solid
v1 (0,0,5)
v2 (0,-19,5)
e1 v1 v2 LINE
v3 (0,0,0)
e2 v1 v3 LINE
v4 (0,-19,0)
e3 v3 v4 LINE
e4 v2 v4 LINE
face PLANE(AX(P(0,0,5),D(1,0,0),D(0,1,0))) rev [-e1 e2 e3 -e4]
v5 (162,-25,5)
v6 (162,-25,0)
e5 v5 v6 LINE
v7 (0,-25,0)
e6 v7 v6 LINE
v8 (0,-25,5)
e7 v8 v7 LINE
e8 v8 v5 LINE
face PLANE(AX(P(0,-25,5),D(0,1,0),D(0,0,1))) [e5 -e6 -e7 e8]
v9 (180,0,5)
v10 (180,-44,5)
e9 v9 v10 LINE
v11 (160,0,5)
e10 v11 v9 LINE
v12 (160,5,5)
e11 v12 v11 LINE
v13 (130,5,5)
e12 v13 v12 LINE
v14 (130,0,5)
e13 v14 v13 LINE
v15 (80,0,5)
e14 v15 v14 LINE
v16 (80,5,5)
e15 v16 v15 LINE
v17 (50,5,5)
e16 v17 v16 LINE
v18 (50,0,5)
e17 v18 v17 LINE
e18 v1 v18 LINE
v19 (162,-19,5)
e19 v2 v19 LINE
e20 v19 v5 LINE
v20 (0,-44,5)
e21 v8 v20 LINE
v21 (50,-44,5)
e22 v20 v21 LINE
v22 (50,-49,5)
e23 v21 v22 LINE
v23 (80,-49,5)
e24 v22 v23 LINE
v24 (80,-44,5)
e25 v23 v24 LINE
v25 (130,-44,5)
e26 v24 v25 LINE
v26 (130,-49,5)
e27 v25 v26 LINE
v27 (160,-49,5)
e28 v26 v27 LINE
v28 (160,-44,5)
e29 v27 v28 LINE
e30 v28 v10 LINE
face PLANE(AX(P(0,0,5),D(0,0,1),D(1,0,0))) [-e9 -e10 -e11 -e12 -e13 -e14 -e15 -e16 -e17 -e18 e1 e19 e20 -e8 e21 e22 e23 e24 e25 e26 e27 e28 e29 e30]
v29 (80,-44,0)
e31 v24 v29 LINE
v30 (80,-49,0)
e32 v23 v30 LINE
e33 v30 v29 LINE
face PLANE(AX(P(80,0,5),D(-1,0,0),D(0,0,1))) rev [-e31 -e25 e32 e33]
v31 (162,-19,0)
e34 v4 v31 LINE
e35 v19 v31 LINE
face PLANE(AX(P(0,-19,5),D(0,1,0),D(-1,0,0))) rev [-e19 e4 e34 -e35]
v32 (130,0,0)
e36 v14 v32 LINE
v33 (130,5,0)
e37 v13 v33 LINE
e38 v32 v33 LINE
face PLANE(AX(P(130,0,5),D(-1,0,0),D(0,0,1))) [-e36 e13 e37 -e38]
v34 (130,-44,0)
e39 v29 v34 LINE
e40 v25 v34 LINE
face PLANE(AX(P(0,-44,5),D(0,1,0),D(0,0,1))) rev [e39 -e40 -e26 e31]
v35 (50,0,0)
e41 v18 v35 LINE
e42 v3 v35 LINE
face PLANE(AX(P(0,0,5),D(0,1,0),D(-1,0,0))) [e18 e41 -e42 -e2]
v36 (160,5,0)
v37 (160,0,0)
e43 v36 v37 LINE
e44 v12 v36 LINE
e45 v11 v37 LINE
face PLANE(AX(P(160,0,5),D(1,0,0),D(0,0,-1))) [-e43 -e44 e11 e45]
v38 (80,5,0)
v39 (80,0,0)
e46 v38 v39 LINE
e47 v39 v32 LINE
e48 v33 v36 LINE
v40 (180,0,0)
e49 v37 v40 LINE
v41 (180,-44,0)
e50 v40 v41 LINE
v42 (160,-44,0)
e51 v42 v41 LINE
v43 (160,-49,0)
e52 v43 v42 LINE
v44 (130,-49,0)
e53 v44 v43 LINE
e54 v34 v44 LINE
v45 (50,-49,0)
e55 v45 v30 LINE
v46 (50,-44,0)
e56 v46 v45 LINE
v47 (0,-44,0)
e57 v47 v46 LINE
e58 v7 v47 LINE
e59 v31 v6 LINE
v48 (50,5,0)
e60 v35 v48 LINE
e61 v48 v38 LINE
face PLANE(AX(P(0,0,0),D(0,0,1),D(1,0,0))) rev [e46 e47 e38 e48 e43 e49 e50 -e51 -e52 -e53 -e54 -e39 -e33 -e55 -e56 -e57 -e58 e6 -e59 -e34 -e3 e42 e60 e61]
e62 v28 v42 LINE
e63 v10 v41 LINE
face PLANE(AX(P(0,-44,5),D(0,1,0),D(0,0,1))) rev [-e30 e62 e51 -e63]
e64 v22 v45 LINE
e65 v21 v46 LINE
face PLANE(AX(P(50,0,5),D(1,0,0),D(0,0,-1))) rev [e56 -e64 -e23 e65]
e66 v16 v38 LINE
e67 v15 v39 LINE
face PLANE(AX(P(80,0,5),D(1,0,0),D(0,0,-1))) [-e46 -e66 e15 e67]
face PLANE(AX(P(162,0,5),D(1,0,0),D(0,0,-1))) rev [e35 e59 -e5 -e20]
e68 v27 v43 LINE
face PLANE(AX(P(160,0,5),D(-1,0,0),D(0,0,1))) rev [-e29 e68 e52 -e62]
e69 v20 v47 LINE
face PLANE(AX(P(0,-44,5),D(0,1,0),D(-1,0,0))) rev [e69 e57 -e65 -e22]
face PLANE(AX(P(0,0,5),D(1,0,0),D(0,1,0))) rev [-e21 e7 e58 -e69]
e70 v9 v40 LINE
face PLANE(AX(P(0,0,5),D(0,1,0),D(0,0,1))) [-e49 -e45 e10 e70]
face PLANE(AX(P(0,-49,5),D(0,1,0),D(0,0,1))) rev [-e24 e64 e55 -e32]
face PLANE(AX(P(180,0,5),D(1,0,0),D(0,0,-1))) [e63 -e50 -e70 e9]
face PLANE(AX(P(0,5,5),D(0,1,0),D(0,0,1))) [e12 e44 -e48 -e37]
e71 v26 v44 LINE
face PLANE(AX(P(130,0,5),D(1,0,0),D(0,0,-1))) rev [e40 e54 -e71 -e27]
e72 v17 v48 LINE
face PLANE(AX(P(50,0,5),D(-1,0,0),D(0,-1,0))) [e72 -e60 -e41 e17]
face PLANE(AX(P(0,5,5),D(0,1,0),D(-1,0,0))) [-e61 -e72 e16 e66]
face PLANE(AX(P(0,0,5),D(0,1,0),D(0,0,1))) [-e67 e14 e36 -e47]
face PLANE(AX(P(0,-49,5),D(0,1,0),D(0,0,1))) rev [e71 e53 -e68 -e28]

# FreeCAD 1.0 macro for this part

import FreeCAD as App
import Part
import Sketcher

V = App.Vector
Q = App.Units.Quantity


def add_polygon(sketch, points):
    """Adds a closed chain of lines whose ends are joined by coincident constraints."""
    first, n = sketch.GeometryCount, len(points)
    for a, b in zip(points, points[1:] + points[:1]):
        sketch.addGeometry(Part.LineSegment(App.Vector(*a, 0), App.Vector(*b, 0)), False)
    for i in range(n):
        sketch.addConstraint(Sketcher.Constraint("Coincident", first + i, 2, first + (i + 1) % n, 1))

doc = App.newDocument("Part")
body = doc.addObject("PartDesign::Body", "Body")

# Sketch on XY plane
sketch1 = body.newObject("Sketcher::SketchObject", "Sketch")
sketch1.AttachmentSupport = (doc.getObject("XY_Plane"), [""])
sketch1.MapMode = "FlatFace"
add_polygon(sketch1, [(0, -25), (0, -44), (50, -44), (50, -49), (80, -49), (80, -44), (130, -44), (130, -49), (160, -49), (160, -44), (180, -44), (180, 0), (160, 0), (160, 5), (130, 5), (130, 0), (80, 0), (80, 5), (50, 5), (50, 0), (0, 0), (0, -19), (162, -19), (162, -25)])  # lines 0-23
sketch1.addConstraint([
    Sketcher.Constraint("Vertical", 0),
    Sketcher.Constraint("Horizontal", 1),
    Sketcher.Constraint("Vertical", 2),
    Sketcher.Constraint("Horizontal", 3),
    Sketcher.Constraint("Vertical", 4),
    Sketcher.Constraint("Horizontal", 5),
    Sketcher.Constraint("Vertical", 6),
    Sketcher.Constraint("Horizontal", 7),
    Sketcher.Constraint("Vertical", 8),
    Sketcher.Constraint("Horizontal", 9),
    Sketcher.Constraint("Vertical", 10),
    Sketcher.Constraint("Horizontal", 11),
    Sketcher.Constraint("Vertical", 12),
    Sketcher.Constraint("Horizontal", 13),
    Sketcher.Constraint("Vertical", 14),
    Sketcher.Constraint("Horizontal", 15),
    Sketcher.Constraint("Vertical", 16),
    Sketcher.Constraint("Horizontal", 17),
    Sketcher.Constraint("Vertical", 18),
    Sketcher.Constraint("Horizontal", 19),
    Sketcher.Constraint("Vertical", 20),
    Sketcher.Constraint("Horizontal", 21),
    Sketcher.Constraint("Vertical", 22),
    Sketcher.Constraint("Horizontal", 23),
    Sketcher.Constraint("Coincident", 19, 2, -1, 1),
    Sketcher.Constraint("PointOnObject", 0, 2, -2),
    Sketcher.Constraint("PointOnObject", 10, 2, -1),
    Sketcher.Constraint("PointOnObject", 14, 2, -1),
    Sketcher.Constraint("Horizontal", 1, 2, 4, 2),
    Sketcher.Constraint("Horizontal", 3, 2, 6, 2),
    Sketcher.Constraint("Horizontal", 5, 2, 8, 2),
    Sketcher.Constraint("Horizontal", 13, 2, 16, 2),
    Sketcher.Constraint("Vertical", 8, 2, 11, 2),
    Sketcher.Constraint("Vertical", 6, 2, 13, 2),
    Sketcher.Constraint("Vertical", 4, 2, 15, 2),
    Sketcher.Constraint("Vertical", 2, 2, 17, 2),
    Sketcher.Constraint("Equal", 1, 5),
    Sketcher.Constraint("Equal", 3, 7),
    Sketcher.Constraint("Equal", 8, 12),
    Sketcher.Constraint("Equal", 0, 20),
    Sketcher.Constraint("DistanceX", 1, 1, 1, 2, Q("50 mm")),
    Sketcher.Constraint("DistanceX", 3, 1, 3, 2, Q("30 mm")),
    Sketcher.Constraint("DistanceX", 9, 1, 9, 2, Q("20 mm")),
    Sketcher.Constraint("DistanceX", 21, 1, 21, 2, Q("162 mm")),
    Sketcher.Constraint("DistanceY", 0, 2, 0, 1, Q("19 mm")),
    Sketcher.Constraint("DistanceY", 2, 2, 2, 1, Q("5 mm")),
    Sketcher.Constraint("DistanceY", 10, 1, 10, 2, Q("44 mm")),
])
pad1 = body.newObject("PartDesign::Pad", "Pad")
pad1.Profile = sketch1
pad1.Length = 5

doc.recompute()
